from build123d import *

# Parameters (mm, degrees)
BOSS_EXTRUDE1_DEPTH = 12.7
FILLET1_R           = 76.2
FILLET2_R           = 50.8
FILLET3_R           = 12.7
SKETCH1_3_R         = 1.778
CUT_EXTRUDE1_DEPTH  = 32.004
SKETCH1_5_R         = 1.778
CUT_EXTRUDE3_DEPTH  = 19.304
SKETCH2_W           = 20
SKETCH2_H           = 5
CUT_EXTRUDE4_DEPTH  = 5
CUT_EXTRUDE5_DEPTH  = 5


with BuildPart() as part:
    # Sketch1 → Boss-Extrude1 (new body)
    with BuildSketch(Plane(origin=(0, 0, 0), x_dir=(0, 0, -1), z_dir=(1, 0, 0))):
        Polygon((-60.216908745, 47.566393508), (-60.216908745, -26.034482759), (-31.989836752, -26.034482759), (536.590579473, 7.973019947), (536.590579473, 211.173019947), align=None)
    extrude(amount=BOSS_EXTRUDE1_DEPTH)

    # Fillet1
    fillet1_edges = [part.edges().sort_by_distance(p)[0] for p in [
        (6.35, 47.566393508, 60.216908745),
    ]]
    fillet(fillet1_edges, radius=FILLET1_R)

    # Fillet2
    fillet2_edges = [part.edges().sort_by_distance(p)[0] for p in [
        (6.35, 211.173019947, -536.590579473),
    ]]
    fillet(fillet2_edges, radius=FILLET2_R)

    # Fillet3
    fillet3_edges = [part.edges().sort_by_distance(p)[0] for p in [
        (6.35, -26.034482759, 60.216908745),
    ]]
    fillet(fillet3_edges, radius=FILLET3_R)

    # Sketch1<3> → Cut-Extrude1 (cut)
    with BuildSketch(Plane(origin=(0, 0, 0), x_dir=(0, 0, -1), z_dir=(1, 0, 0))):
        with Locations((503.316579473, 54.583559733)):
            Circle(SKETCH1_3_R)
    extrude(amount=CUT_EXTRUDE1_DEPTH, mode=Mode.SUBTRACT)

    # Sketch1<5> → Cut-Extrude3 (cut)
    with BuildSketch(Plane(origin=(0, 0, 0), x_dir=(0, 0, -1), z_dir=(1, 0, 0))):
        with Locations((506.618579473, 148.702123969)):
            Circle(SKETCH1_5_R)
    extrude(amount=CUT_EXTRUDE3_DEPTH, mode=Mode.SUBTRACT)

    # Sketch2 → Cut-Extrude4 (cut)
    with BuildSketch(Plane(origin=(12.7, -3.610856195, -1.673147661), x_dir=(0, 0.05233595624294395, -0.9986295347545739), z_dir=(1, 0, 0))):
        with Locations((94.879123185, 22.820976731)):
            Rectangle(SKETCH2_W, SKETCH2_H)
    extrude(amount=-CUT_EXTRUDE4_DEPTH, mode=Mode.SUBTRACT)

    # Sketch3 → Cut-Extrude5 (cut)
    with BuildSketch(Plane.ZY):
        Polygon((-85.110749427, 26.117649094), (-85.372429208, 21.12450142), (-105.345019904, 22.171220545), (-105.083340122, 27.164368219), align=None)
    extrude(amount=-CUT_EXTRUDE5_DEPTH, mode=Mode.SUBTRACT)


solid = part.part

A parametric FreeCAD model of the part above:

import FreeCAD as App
import Part
import Sketcher
Q = App.Units.Quantity


def edges_at(feature, points):
    """Names of the edges that pass closest to the given points."""
    edges = feature.Shape.Edges
    near = lambda p: min(range(len(edges)), key=lambda i: edges[i].distToShape(Part.Vertex(*p))[0])
    return sorted({f"Edge{near(p) + 1}" for p in points})

doc = App.newDocument("Part")
params = doc.addObject("Spreadsheet::Sheet", "Params")
for row, (alias, value) in enumerate([
    ("sketch1_width", "8 in"),
    ("pad1_length", "0.5 in"),
    ("fillet_radius", "3 in"),
    ("fillet2_radius", "2 in"),
    ("fillet3_radius", "0.5 in"),
    ("sketch2_diameter", "0.14 in"),
    ("pocket1_length", "1.26 in"),
    ("sketch3_diameter", "0.14 in"),
    ("pocket2_length", "0.76 in"),
    ("pocket3_length", "5 mm"),
    ("pocket4_length", "5 mm"),
], start=1):
    params.set(f"A{row}", alias)
    params.set(f"B{row}", "=" + value)
    params.setAlias(f"B{row}", alias)

body = doc.addObject("PartDesign::Body", "Body")

# Sketch on YZ plane
sketch1 = body.newObject("Sketcher::SketchObject", "Sketch")
sketch1.AttachmentSupport = (doc.getObject("YZ_Plane"), [""])
sketch1.MapMode = "FlatFace"
sketch1.addGeometry(Part.LineSegment(App.Vector(48, 60, 0), App.Vector(-26, 60, 0)), False)
sketch1.addGeometry(Part.LineSegment(App.Vector(-26, 60, 0), App.Vector(-26, 32, 0)), False)
sketch1.addGeometry(Part.LineSegment(App.Vector(-26, 32, 0), App.Vector(8, -537, 0)), False)
sketch1.addGeometry(Part.LineSegment(App.Vector(8, -537, 0), App.Vector(211, -537, 0)), False)
sketch1.addGeometry(Part.LineSegment(App.Vector(211, -537, 0), App.Vector(48, 60, 0)), False)
sketch1.addConstraint(Sketcher.Constraint("Coincident", 0, 2, 1, 1))
sketch1.addConstraint(Sketcher.Constraint("Coincident", 1, 2, 2, 1))
sketch1.addConstraint(Sketcher.Constraint("Coincident", 2, 2, 3, 1))
sketch1.addConstraint(Sketcher.Constraint("Coincident", 3, 2, 4, 1))
sketch1.addConstraint(Sketcher.Constraint("Coincident", 4, 2, 0, 1))
sketch1.addConstraint(Sketcher.Constraint("Horizontal", 0))
sketch1.addConstraint(Sketcher.Constraint("Vertical", 1))
sketch1.addConstraint(Sketcher.Constraint("Horizontal", 3))
sketch1.addConstraint(Sketcher.Constraint("DistanceX", 3, 1, 3, 2, Q("8 in")))
sketch1.addConstraint(Sketcher.Constraint("DistanceY", 1, 2, 1, 1, 28.227072))
sketch1.addConstraint(Sketcher.Constraint("DistanceX", 0, 2, 0, 1, 73.600876))
sketch1.addConstraint(Sketcher.Constraint("DistanceY", -1, 1, 0, 2, 60.216909))
sketch1.addConstraint(Sketcher.Constraint("DistanceX", -1, 1, 2, 2, 7.97302))
sketch1.addConstraint(Sketcher.Constraint("DistanceY", 2, 2, -1, 1, 536.590579))
sketch1.addConstraint(Sketcher.Constraint("Distance", 2, 569.596524))
sketch1.setExpression("Constraints[8]", "Params.sketch1_width")
pad1 = body.newObject("PartDesign::Pad", "Pad")
pad1.Profile = sketch1
pad1.setExpression("Length", "Params.pad1_length")
doc.recompute()

fillet = body.newObject("PartDesign::Fillet", "Fillet")
fillet.Base = (pad1, edges_at(pad1, [(6.35, 47.566, 60.217)]))
fillet.setExpression("Radius", "Params.fillet_radius")
doc.recompute()

fillet2 = body.newObject("PartDesign::Fillet", "Fillet001")
fillet2.Base = (fillet, edges_at(fillet, [(6.35, 211.173, -536.591)]))
fillet2.setExpression("Radius", "Params.fillet2_radius")
doc.recompute()

fillet3 = body.newObject("PartDesign::Fillet", "Fillet002")
fillet3.Base = (fillet2, edges_at(fillet2, [(6.35, -26.034, 60.217)]))
fillet3.setExpression("Radius", "Params.fillet3_radius")

# Sketch on YZ plane
sketch2 = body.newObject("Sketcher::SketchObject", "Sketch001")
sketch2.AttachmentSupport = (doc.getObject("YZ_Plane"), [""])
sketch2.MapMode = "FlatFace"
sketch2.addGeometry(Part.Circle(App.Vector(54.6, -503.3, 0), App.Vector(0, 0, 1), 1.8), False)
sketch2.addConstraint(Sketcher.Constraint("Diameter", 0, Q("0.14 in")))
sketch2.addConstraint(Sketcher.Constraint("DistanceX", -1, 1, 0, 3, 54.58356))
sketch2.addConstraint(Sketcher.Constraint("DistanceY", 0, 3, -1, 1, 503.316579))
sketch2.setExpression("Constraints[0]", "Params.sketch2_diameter")
pocket1 = body.newObject("PartDesign::Pocket", "Pocket")
pocket1.Profile = sketch2
pocket1.setExpression("Length", "Params.pocket1_length")
pocket1.Reversed = True

# Sketch on YZ plane
sketch3 = body.newObject("Sketcher::SketchObject", "Sketch002")
sketch3.AttachmentSupport = (doc.getObject("YZ_Plane"), [""])
sketch3.MapMode = "FlatFace"
sketch3.addGeometry(Part.Circle(App.Vector(148.7, -506.6, 0), App.Vector(0, 0, 1), 1.8), False)
sketch3.addConstraint(Sketcher.Constraint("Diameter", 0, Q("0.14 in")))
sketch3.addConstraint(Sketcher.Constraint("DistanceY", 0, 3, -1, 1, 506.618579))
sketch3.addConstraint(Sketcher.Constraint("DistanceX", -1, 1, 0, 3, 148.702124))
sketch3.setExpression("Constraints[0]", "Params.sketch3_diameter")
pocket2 = body.newObject("PartDesign::Pocket", "Pocket001")
pocket2.Profile = sketch3
pocket2.setExpression("Length", "Params.pocket2_length")
pocket2.Reversed = True

# Sketch on YZ plane
sketch4 = body.newObject("Sketcher::SketchObject", "Sketch003")
sketch4.AttachmentSupport = (doc.getObject("YZ_Plane"), [""])
sketch4.MapMode = "FlatFace"
sketch4.AttachmentOffset = App.Placement(App.Vector(0, 0, 0.5 * 25.4), App.Rotation())
sketch4.addGeometry(Part.LineSegment(App.Vector(26, -85, 0), App.Vector(21, -85, 0)), False)
sketch4.addGeometry(Part.LineSegment(App.Vector(21, -85, 0), App.Vector(22, -105, 0)), False)
sketch4.addGeometry(Part.LineSegment(App.Vector(22, -105, 0), App.Vector(27, -105, 0)), False)
sketch4.addGeometry(Part.LineSegment(App.Vector(27, -105, 0), App.Vector(26, -85, 0)), False)
sketch4.addConstraint(Sketcher.Constraint("Coincident", 0, 2, 1, 1))
sketch4.addConstraint(Sketcher.Constraint("Coincident", 1, 2, 2, 1))
sketch4.addConstraint(Sketcher.Constraint("Coincident", 2, 2, 3, 1))
sketch4.addConstraint(Sketcher.Constraint("Coincident", 3, 2, 0, 1))
sketch4.addConstraint(Sketcher.Constraint("Perpendicular", 0, 1))
sketch4.addConstraint(Sketcher.Constraint("Perpendicular", 1, 2))
sketch4.addConstraint(Sketcher.Constraint("Perpendicular", 2, 3))
sketch4.addConstraint(Sketcher.Constraint("Angle", 0, Q("-177 deg")))
sketch4.addConstraint(Sketcher.Constraint("Distance", 0, 5.0))
sketch4.addConstraint(Sketcher.Constraint("Distance", 1, 20.0))
sketch4.addConstraint(Sketcher.Constraint("DistanceX", -1, 1, 0, 2, 21.124501))
sketch4.addConstraint(Sketcher.Constraint("DistanceY", 0, 2, -1, 1, 85.372429))
pocket3 = body.newObject("PartDesign::Pocket", "Pocket002")
pocket3.Profile = sketch4
pocket3.setExpression("Length", "Params.pocket3_length")

# Sketch on YZ plane
sketch5 = body.newObject("Sketcher::SketchObject", "Sketch004")
sketch5.AttachmentSupport = (doc.getObject("YZ_Plane"), [""])
sketch5.MapMode = "FlatFace"
sketch5.addGeometry(Part.LineSegment(App.Vector(21, -85, 0), App.Vector(26, -85, 0)), False)
sketch5.addGeometry(Part.LineSegment(App.Vector(26, -85, 0), App.Vector(27, -105, 0)), False)
sketch5.addGeometry(Part.LineSegment(App.Vector(27, -105, 0), App.Vector(22, -105, 0)), False)
sketch5.addGeometry(Part.LineSegment(App.Vector(22, -105, 0), App.Vector(21, -85, 0)), False)
sketch5.addConstraint(Sketcher.Constraint("Coincident", 0, 2, 1, 1))
sketch5.addConstraint(Sketcher.Constraint("Coincident", 1, 2, 2, 1))
sketch5.addConstraint(Sketcher.Constraint("Coincident", 2, 2, 3, 1))
sketch5.addConstraint(Sketcher.Constraint("Coincident", 3, 2, 0, 1))
sketch5.addConstraint(Sketcher.Constraint("Perpendicular", 0, 1))
sketch5.addConstraint(Sketcher.Constraint("Perpendicular", 1, 2))
sketch5.addConstraint(Sketcher.Constraint("Perpendicular", 2, 3))
sketch5.addConstraint(Sketcher.Constraint("Angle", 0, Q("3 deg")))
sketch5.addConstraint(Sketcher.Constraint("Distance", 0, 5.0))
sketch5.addConstraint(Sketcher.Constraint("Distance", 1, 20.0))
sketch5.addConstraint(Sketcher.Constraint("DistanceX", -1, 1, 3, 2, 21.124501))
sketch5.addConstraint(Sketcher.Constraint("DistanceY", 0, 2, -1, 1, 85.110749))
pocket4 = body.newObject("PartDesign::Pocket", "Pocket003")
pocket4.Profile = sketch5
pocket4.setExpression("Length", "Params.pocket4_length")
pocket4.Reversed = True

doc.recompute()
